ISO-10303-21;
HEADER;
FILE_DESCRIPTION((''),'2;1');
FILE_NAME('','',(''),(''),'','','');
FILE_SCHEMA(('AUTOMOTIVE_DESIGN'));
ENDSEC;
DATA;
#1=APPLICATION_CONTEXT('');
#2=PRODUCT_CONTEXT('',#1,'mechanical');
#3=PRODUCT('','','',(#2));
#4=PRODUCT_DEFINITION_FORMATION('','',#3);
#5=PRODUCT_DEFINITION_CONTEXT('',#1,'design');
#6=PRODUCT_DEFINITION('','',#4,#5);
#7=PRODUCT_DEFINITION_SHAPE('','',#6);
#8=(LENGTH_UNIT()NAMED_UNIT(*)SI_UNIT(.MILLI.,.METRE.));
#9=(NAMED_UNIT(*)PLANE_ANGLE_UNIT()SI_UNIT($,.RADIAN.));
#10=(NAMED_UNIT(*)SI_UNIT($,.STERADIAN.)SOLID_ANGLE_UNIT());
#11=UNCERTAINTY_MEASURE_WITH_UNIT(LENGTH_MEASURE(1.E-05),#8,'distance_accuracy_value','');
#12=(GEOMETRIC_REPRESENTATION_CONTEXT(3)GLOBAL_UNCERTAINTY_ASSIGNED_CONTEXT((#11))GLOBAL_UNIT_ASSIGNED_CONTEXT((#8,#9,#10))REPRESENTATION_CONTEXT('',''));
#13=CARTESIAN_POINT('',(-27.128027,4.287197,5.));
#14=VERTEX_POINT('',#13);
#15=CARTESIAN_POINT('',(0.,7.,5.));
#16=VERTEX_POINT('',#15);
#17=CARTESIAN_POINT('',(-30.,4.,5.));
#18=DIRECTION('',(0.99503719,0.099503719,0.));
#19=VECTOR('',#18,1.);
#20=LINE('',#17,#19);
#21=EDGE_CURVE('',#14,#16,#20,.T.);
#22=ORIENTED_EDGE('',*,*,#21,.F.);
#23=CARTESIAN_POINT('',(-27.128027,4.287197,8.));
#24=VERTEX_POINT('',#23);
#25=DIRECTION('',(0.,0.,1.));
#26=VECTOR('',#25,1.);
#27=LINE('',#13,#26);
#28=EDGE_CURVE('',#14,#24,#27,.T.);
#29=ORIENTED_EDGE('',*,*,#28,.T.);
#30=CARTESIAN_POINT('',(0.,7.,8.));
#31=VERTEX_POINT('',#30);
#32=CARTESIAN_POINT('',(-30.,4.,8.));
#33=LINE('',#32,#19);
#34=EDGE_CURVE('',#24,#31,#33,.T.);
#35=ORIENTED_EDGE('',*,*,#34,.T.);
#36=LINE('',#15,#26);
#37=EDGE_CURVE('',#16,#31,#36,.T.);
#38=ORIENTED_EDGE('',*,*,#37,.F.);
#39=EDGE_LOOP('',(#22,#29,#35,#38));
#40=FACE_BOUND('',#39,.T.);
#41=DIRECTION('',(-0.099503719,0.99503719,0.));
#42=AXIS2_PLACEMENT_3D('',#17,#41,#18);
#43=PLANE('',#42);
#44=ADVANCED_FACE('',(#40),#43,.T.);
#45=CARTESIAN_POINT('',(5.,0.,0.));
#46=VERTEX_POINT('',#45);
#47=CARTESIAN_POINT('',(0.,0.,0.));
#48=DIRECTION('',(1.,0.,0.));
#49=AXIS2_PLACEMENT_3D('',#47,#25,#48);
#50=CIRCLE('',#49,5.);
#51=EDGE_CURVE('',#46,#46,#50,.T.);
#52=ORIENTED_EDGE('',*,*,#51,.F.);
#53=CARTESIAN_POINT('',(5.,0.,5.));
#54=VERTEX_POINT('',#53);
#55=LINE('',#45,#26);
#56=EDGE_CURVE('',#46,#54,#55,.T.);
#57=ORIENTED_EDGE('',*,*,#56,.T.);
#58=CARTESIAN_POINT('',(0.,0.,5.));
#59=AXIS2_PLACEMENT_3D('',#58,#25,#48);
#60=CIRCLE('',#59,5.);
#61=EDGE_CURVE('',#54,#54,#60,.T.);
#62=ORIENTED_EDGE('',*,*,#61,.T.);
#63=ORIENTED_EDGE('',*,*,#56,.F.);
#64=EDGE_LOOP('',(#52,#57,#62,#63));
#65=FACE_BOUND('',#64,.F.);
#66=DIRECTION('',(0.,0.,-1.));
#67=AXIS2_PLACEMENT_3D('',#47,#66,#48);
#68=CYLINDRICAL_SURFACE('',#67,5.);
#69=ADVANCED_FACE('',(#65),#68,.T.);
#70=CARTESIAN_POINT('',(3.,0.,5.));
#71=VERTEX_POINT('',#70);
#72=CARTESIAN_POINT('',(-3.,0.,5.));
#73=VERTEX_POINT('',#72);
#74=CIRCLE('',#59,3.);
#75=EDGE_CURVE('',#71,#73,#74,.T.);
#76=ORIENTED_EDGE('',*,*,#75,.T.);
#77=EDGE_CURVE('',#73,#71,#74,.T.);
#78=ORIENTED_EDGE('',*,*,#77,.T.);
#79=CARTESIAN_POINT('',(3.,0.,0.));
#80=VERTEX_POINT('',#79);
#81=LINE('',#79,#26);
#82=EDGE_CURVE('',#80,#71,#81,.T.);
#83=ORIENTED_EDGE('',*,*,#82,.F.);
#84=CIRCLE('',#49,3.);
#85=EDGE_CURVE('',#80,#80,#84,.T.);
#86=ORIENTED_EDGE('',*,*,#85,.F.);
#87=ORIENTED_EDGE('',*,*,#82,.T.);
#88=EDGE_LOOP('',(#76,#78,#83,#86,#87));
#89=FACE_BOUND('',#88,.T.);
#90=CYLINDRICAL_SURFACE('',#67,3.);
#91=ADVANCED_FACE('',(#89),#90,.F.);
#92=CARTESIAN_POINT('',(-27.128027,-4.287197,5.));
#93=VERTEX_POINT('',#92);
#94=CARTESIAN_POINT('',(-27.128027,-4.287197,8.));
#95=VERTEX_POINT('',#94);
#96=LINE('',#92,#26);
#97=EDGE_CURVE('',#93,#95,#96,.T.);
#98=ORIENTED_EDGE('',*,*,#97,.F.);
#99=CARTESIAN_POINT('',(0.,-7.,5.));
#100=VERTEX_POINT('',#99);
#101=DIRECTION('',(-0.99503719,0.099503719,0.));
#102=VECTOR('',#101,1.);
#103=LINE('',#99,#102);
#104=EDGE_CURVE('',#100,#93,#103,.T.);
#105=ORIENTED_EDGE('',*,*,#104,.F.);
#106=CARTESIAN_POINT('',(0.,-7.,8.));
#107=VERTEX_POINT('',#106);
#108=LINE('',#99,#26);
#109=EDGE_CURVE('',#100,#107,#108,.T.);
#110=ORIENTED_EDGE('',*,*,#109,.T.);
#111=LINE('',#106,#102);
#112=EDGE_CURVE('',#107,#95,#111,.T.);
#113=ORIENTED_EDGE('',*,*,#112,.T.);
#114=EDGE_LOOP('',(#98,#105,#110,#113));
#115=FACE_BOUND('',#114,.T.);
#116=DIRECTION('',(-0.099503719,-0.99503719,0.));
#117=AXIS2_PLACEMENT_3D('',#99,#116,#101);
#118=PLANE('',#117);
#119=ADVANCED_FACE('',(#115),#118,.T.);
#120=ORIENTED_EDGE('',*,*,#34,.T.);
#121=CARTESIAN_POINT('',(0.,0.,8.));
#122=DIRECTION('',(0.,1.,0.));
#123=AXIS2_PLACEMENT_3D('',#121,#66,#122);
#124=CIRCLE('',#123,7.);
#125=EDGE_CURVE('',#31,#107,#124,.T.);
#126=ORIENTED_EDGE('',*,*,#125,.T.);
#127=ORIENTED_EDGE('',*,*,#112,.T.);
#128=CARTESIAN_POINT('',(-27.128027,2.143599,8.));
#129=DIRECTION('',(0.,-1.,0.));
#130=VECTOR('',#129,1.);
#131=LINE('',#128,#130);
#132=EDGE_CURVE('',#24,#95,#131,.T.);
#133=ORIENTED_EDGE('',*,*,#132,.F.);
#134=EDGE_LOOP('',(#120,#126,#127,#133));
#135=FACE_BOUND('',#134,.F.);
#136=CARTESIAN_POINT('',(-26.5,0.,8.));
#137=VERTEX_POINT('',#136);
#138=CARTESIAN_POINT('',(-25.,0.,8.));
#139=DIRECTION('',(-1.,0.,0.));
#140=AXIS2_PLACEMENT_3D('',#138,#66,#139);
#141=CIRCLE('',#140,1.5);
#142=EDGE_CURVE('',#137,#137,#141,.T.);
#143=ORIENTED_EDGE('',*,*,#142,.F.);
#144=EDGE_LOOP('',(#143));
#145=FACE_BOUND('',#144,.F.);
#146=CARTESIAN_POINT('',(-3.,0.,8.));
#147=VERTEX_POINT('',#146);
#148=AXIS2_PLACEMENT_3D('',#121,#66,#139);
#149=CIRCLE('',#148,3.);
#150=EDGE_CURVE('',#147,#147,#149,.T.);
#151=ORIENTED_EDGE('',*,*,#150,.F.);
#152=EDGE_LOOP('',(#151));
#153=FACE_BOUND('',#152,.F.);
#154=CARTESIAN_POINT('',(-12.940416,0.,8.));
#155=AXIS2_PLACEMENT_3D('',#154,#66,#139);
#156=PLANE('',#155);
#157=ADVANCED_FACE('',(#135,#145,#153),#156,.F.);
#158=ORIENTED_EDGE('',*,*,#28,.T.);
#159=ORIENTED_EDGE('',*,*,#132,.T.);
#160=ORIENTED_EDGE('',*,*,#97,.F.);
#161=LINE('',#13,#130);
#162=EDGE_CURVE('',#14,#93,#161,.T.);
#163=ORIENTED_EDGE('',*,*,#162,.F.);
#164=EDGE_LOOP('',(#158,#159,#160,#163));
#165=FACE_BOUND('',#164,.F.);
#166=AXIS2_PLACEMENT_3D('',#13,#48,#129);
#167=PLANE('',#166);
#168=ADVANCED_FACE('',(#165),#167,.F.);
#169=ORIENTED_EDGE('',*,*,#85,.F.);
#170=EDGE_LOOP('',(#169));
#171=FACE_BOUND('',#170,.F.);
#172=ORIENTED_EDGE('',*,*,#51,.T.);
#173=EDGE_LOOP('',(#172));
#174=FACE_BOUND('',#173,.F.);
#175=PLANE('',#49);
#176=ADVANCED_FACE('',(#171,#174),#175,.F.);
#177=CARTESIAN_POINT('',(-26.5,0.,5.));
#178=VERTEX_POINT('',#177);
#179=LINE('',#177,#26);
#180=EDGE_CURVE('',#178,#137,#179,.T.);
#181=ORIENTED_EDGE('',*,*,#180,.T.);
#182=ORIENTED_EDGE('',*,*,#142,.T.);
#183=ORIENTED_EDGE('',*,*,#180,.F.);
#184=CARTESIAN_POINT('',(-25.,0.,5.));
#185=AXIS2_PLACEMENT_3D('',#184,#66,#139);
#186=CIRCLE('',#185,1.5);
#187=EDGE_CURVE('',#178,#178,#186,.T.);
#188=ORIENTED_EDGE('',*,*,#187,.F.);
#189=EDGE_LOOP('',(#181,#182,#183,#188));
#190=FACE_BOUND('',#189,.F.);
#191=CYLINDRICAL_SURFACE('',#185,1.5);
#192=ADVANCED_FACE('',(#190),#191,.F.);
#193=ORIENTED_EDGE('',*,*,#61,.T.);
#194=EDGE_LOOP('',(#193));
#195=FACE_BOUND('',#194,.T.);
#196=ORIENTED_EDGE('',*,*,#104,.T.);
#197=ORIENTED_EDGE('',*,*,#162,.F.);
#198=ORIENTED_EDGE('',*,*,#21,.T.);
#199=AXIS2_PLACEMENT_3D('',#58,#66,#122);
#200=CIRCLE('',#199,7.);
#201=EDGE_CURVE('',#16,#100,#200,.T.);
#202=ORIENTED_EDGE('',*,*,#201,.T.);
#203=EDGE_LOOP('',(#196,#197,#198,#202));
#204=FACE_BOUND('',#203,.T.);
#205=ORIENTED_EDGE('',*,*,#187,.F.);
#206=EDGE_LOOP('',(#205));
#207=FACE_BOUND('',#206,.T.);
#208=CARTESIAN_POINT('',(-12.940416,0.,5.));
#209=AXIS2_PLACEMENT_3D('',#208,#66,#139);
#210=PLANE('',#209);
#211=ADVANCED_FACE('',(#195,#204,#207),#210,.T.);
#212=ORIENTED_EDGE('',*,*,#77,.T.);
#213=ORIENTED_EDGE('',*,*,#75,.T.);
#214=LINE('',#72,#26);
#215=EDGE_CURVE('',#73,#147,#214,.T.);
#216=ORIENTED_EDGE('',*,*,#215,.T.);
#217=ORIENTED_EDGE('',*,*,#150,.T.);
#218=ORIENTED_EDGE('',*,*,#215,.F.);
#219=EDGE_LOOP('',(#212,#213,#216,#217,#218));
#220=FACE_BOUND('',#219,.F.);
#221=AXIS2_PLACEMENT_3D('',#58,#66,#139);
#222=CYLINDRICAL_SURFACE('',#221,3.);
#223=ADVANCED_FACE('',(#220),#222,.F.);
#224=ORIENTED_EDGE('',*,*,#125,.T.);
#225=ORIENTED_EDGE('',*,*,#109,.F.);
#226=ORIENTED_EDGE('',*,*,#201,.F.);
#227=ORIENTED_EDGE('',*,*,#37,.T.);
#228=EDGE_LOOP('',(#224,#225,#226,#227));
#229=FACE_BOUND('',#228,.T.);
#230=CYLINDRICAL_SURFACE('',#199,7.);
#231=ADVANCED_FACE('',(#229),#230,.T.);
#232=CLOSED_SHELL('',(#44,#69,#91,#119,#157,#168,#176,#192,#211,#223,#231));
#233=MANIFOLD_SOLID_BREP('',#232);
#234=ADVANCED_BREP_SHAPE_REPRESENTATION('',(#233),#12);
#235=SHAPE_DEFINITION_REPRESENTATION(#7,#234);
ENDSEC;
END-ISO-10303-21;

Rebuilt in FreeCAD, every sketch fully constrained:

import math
import FreeCAD as App
import Part
import Sketcher
from FreeCAD import Vector
Q = App.Units.Quantity

doc = App.newDocument("Part")
body = doc.addObject("PartDesign::Body", "Body")

sketch1 = body.newObject("Sketcher::SketchObject", "Sketch")
sketch1.AttachmentSupport = (doc.getObject("XY_Plane"), [""])
sketch1.MapMode = "FlatFace"
sketch1.addGeometry([
    Part.Circle(Vector(0, 0, 0), Vector(0, 0, 1), 5),
    Part.Circle(Vector(0, 0, 0), Vector(0, 0, 1), 3),
], False)
sketch1.addConstraint([
    Sketcher.Constraint("Coincident", 0, 3, -1, 1),
    Sketcher.Constraint("Coincident", 1, 3, -1, 1),
    Sketcher.Constraint("Diameter", 0, Q("10 mm")),
    Sketcher.Constraint("Diameter", 1, Q("6 mm")),
])
pad1 = body.newObject("PartDesign::Pad", "Pad")
pad1.Profile = sketch1
pad1.Length = 5

sketch2 = body.newObject("Sketcher::SketchObject", "Sketch001")
sketch2.AttachmentSupport = (doc.getObject("XY_Plane"), [""])
sketch2.MapMode = "FlatFace"
sketch2.AttachmentOffset = App.Placement(Vector(0, 0, 5), App.Rotation())
sketch2.addGeometry([
    Part.LineSegment(Vector(0, 7, 0), Vector(-30, 4, 0)),
    Part.ArcOfCircle(Part.Circle(Vector(-30, 0, 0), Vector(0, 0, 1), 4), math.radians(90), math.radians(270)),
    Part.LineSegment(Vector(-30, -4, 0), Vector(0, -7, 0)),
    Part.ArcOfCircle(Part.Circle(Vector(0, 0, 0), Vector(0, 0, 1), 7), math.radians(-90), math.radians(90)),
], False)
sketch2.addConstraint([
    Sketcher.Constraint("Coincident", 0, 2, 1, 1),
    Sketcher.Constraint("Coincident", 1, 2, 2, 1),
    Sketcher.Constraint("Coincident", 2, 2, 3, 1),
    Sketcher.Constraint("Coincident", 3, 2, 0, 1),
    Sketcher.Constraint("Coincident", 3, 3, -1, 1),
    Sketcher.Constraint("Symmetric", 0, 2, 1, 2, -1),
    Sketcher.Constraint("PointOnObject", 2, 2, -2),
    Sketcher.Constraint("PointOnObject", 3, 2, -2),
    Sketcher.Constraint("Vertical", 1, 3, 0, 2),
    Sketcher.Constraint("Radius", 1, Q("4 mm")),
    Sketcher.Constraint("Radius", 3, Q("7 mm")),
    Sketcher.Constraint("DistanceX", 1, 3, -1, 1, Q("30 mm")),
])
pad2 = body.newObject("PartDesign::Pad", "Pad001")
pad2.Profile = sketch2
pad2.Length = 3

sketch3 = body.newObject("Sketcher::SketchObject", "Sketch002")
sketch3.AttachmentSupport = (doc.getObject("XY_Plane"), [""])
sketch3.MapMode = "FlatFace"
sketch3.AttachmentOffset = App.Placement(Vector(0, 0, 5), App.Rotation())
sketch3.addGeometry(Part.Circle(Vector(-25, 0, 0), Vector(0, 0, 1), 1.5), False)
sketch3.addConstraint([
    Sketcher.Constraint("PointOnObject", 0, 3, -1),
    Sketcher.Constraint("Diameter", 0, Q("3 mm")),
    Sketcher.Constraint("DistanceX", 0, 3, -1, 1, Q("25 mm")),
])
pocket1 = body.newObject("PartDesign::Pocket", "Pocket")
pocket1.Profile = sketch3
pocket1.Length = 3
pocket1.Reversed = True

sketch4 = body.newObject("Sketcher::SketchObject", "Sketch003")
sketch4.AttachmentSupport = (doc.getObject("XY_Plane"), [""])
sketch4.MapMode = "FlatFace"
sketch4.AttachmentOffset = App.Placement(Vector(0, 0, 5), App.Rotation())
sketch4.addGeometry(Part.Circle(Vector(0, 0, 0), Vector(0, 0, 1), 3), False)
sketch4.addConstraint([
    Sketcher.Constraint("Coincident", 0, 3, -1, 1),
    Sketcher.Constraint("Diameter", 0, Q("6 mm")),
])
pocket2 = body.newObject("PartDesign::Pocket", "Pocket001")
pocket2.Profile = sketch4
pocket2.Length = 3
pocket2.Reversed = True

sketch5 = body.newObject("Sketcher::SketchObject", "Sketch004")
sketch5.AttachmentSupport = (doc.getObject("XY_Plane"), [""])
sketch5.MapMode = "FlatFace"
sketch5.AttachmentOffset = App.Placement(Vector(0, 0, 5), App.Rotation())
sketch5.addGeometry([
    Part.LineSegment(Vector(-27.1, 4.3, 0), Vector(-27.1, -4.3, 0)),
    Part.LineSegment(Vector(-27.1, -4.3, 0), Vector(-30, -4, 0)),
    Part.ArcOfCircle(Part.Circle(Vector(-30, 0, 0), Vector(0, 0, 1), 4), math.radians(90), math.radians(270)),
    Part.LineSegment(Vector(-30, 4, 0), Vector(-27.1, 4.3, 0)),
], False)
sketch5.addConstraint([
    Sketcher.Constraint("Coincident", 0, 2, 1, 1),
    Sketcher.Constraint("Coincident", 1, 2, 2, 2),
    Sketcher.Constraint("Coincident", 2, 1, 3, 1),
    Sketcher.Constraint("Coincident", 3, 2, 0, 1),
    Sketcher.Constraint("Vertical", 0),
    Sketcher.Constraint("Symmetric", 1, 2, 2, 1, -1),
    Sketcher.Constraint("Vertical", 2, 3, 1, 2),
    Sketcher.Constraint("Equal", 1, 3),
    Sketcher.Constraint("Radius", 2, Q("4 mm")),
    Sketcher.Constraint("DistanceX", 2, 3, -1, 1, Q("30 mm")),
    Sketcher.Constraint("DistanceY", 0, 2, 0, 1, Q("8.574395 mm")),
    Sketcher.Constraint("Distance", 1, Q("2.886297 mm")),
])
pocket3 = body.newObject("PartDesign::Pocket", "Pocket002")
pocket3.Profile = sketch5
pocket3.Length = 10
pocket3.Reversed = True

doc.recompute()
